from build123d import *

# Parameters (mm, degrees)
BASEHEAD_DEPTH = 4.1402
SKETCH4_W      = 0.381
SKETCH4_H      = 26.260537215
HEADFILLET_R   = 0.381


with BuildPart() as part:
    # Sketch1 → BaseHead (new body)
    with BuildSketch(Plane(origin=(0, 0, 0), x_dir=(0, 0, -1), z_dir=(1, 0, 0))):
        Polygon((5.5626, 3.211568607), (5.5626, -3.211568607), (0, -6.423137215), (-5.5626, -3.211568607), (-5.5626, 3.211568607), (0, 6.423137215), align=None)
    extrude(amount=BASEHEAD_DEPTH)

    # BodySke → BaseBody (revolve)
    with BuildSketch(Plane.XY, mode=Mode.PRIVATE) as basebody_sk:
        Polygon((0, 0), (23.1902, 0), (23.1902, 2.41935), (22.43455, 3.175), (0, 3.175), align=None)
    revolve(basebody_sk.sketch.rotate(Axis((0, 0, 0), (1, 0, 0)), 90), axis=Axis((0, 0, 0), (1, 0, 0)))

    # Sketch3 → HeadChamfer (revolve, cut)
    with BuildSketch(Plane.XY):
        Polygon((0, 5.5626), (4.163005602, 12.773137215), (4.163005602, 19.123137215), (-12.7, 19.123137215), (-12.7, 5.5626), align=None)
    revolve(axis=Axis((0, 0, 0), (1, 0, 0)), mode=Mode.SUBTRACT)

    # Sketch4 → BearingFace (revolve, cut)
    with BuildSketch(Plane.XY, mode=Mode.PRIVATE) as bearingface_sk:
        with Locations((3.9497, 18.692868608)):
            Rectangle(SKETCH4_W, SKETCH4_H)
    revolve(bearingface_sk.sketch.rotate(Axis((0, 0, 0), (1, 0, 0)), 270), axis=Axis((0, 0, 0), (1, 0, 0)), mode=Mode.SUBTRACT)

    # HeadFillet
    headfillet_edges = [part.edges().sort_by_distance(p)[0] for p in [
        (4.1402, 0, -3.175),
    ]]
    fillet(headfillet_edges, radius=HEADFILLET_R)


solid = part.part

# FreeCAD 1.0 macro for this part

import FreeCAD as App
import Part
import Sketcher

V = App.Vector
Q = App.Units.Quantity


def edges_at(feature, points):
    """Names of the edges that pass closest to the given points."""
    edges = feature.Shape.Edges
    near = lambda p: min(range(len(edges)), key=lambda i: edges[i].distToShape(Part.Vertex(*p))[0])
    return sorted({f"Edge{near(p) + 1}" for p in points})


def add_polygon(sketch, points):
    """Adds a closed chain of lines whose ends are joined by coincident constraints."""
    first, n = sketch.GeometryCount, len(points)
    for a, b in zip(points, points[1:] + points[:1]):
        sketch.addGeometry(Part.LineSegment(App.Vector(*a, 0), App.Vector(*b, 0)), False)
    for i in range(n):
        sketch.addConstraint(Sketcher.Constraint("Coincident", first + i, 2, first + (i + 1) % n, 1))

doc = App.newDocument("Part")
params = doc.addObject("Spreadsheet::Sheet", "Params")
for row, (alias, value) in enumerate([
    ("pad1_length", "0.163 in"),
    ("sketch2_width", "0.913 in"),
    ("sketch2_height", "0.125 in"),
    ("revolution_angle", "360 deg"),
    ("sketch3_width", "0.5 in"),
    ("sketch3_height", "0.25 in"),
    ("groove_angle", "360 deg"),
    ("sketch4_width", "0.015 in"),
    ("groove2_angle", "360 deg"),
    ("fillet_radius", "0.015 in"),
], start=1):
    params.set(f"A{row}", alias)
    params.set(f"B{row}", "=" + value)
    params.setAlias(f"B{row}", alias)

body = doc.addObject("PartDesign::Body", "Body")

# Sketch on YZ plane
sketch1 = body.newObject("Sketcher::SketchObject", "Sketch")
sketch1.AttachmentSupport = (doc.getObject("YZ_Plane"), [""])
sketch1.MapMode = "FlatFace"
add_polygon(sketch1, [(-3, -6), (3, -6), (6, 0), (3, 6), (-3, 6), (-6, 0)])  # lines 0-5
sketch1.addConstraint([
    Sketcher.Constraint("Horizontal", 0),
    Sketcher.Constraint("Horizontal", 3),
    Sketcher.Constraint("Symmetric", 0, 2, 3, 2, -1, 1),
    Sketcher.Constraint("Symmetric", 1, 2, 4, 2, -1, 1),
    Sketcher.Constraint("PointOnObject", 1, 2, -1),
    Sketcher.Constraint("Parallel", 2, 5),
    Sketcher.Constraint("Vertical", 0, 2, 2, 2),
    Sketcher.Constraint("Angle", 1, Q("60 deg")),
    Sketcher.Constraint("DistanceY", 0, 2, -1, 1, Q("0.219 in")),
    Sketcher.Constraint("DistanceX", 0, 1, 0, 2, 6.423137),
])
pad1 = body.newObject("PartDesign::Pad", "Pad")
pad1.Profile = sketch1
pad1.setExpression("Length", "Params.pad1_length")

# Sketch on XY plane
sketch2 = body.newObject("Sketcher::SketchObject", "Sketch001")
sketch2.AttachmentSupport = (doc.getObject("XY_Plane"), [""])
sketch2.MapMode = "FlatFace"
add_polygon(sketch2, [(0, 0), (23.2, 0), (23.2, 2.4), (22.4, 3.2), (0, 3.2)])  # lines 0-4
sketch2.addConstraint([
    Sketcher.Constraint("Horizontal", 0),
    Sketcher.Constraint("Vertical", 1),
    Sketcher.Constraint("Horizontal", 3),
    Sketcher.Constraint("Vertical", 4),
    Sketcher.Constraint("Coincident", 4, 2, -1, 1),
    Sketcher.Constraint("Angle", 2, Q("135 deg")),
    Sketcher.Constraint("DistanceX", 0, 1, 0, 2, Q("0.913 in")),
    Sketcher.Constraint("DistanceY", 4, 2, 4, 1, Q("0.125 in")),
    Sketcher.Constraint("DistanceX", 3, 2, 3, 1, 22.43455),
])
sketch2.setExpression("Constraints[11]", "Params.sketch2_width")
sketch2.setExpression("Constraints[12]", "Params.sketch2_height")
revolution = body.newObject("PartDesign::Revolution", "Revolution")
revolution.Profile = sketch2
revolution.ReferenceAxis = (sketch2, ["H_Axis"])
revolution.setExpression("Angle", "Params.revolution_angle")

# Sketch on XY plane
sketch3 = body.newObject("Sketcher::SketchObject", "Sketch002")
sketch3.AttachmentSupport = (doc.getObject("XY_Plane"), [""])
sketch3.MapMode = "FlatFace"
add_polygon(sketch3, [(0, 6), (4, 13), (4, 19), (-13, 19), (-13, 6)])  # lines 0-4
sketch3.addConstraint([
    Sketcher.Constraint("Vertical", 1),
    Sketcher.Constraint("Horizontal", 2),
    Sketcher.Constraint("Vertical", 3),
    Sketcher.Constraint("Horizontal", 4),
    Sketcher.Constraint("PointOnObject", 4, 2, -2),
    Sketcher.Constraint("DistanceX", 4, 1, 4, 2, Q("0.5 in")),
    Sketcher.Constraint("Angle", 0, Q("60 deg")),
    Sketcher.Constraint("DistanceY", 1, 1, 1, 2, Q("0.25 in")),
    Sketcher.Constraint("DistanceY", -1, 1, 3, 2, Q("0.219 in")),
    Sketcher.Constraint("Distance", 0, 8.326011),
])
sketch3.setExpression("Constraints[10]", "Params.sketch3_width")
sketch3.setExpression("Constraints[12]", "Params.sketch3_height")
groove = body.newObject("PartDesign::Groove", "Groove")
groove.Profile = sketch3
groove.ReferenceAxis = (sketch3, ["H_Axis"])
groove.setExpression("Angle", "Params.groove_angle")

# Sketch on XY plane
sketch4 = body.newObject("Sketcher::SketchObject", "Sketch003")
sketch4.AttachmentSupport = (doc.getObject("XY_Plane"), [""])
sketch4.MapMode = "FlatFace"
add_polygon(sketch4, [(3.76, 31.82), (3.76, 5.56), (4.14, 5.56), (4.14, 31.82)])  # lines 0-3
sketch4.addConstraint([
    Sketcher.Constraint("Vertical", 0),
    Sketcher.Constraint("Horizontal", 1),
    Sketcher.Constraint("Vertical", 2),
    Sketcher.Constraint("Horizontal", 3),
    Sketcher.Constraint("DistanceX", 1, 1, 1, 2, Q("0.015 in")),
    Sketcher.Constraint("DistanceX", -1, 1, 0, 2, Q("0.148 in")),
    Sketcher.Constraint("DistanceY", -1, 1, 0, 2, Q("0.219 in")),
    Sketcher.Constraint("DistanceY", 0, 2, 0, 1, 26.260537),
])
sketch4.setExpression("Constraints[8]", "Params.sketch4_width")
groove2 = body.newObject("PartDesign::Groove", "Groove001")
groove2.Profile = sketch4
groove2.ReferenceAxis = (sketch4, ["H_Axis"])
groove2.setExpression("Angle", "Params.groove2_angle")
doc.recompute()

fillet = body.newObject("PartDesign::Fillet", "Fillet")
fillet.Base = (groove2, edges_at(groove2, [(4.14, 0, -3.175)]))
fillet.setExpression("Radius", "Params.fillet_radius")

doc.recompute()
